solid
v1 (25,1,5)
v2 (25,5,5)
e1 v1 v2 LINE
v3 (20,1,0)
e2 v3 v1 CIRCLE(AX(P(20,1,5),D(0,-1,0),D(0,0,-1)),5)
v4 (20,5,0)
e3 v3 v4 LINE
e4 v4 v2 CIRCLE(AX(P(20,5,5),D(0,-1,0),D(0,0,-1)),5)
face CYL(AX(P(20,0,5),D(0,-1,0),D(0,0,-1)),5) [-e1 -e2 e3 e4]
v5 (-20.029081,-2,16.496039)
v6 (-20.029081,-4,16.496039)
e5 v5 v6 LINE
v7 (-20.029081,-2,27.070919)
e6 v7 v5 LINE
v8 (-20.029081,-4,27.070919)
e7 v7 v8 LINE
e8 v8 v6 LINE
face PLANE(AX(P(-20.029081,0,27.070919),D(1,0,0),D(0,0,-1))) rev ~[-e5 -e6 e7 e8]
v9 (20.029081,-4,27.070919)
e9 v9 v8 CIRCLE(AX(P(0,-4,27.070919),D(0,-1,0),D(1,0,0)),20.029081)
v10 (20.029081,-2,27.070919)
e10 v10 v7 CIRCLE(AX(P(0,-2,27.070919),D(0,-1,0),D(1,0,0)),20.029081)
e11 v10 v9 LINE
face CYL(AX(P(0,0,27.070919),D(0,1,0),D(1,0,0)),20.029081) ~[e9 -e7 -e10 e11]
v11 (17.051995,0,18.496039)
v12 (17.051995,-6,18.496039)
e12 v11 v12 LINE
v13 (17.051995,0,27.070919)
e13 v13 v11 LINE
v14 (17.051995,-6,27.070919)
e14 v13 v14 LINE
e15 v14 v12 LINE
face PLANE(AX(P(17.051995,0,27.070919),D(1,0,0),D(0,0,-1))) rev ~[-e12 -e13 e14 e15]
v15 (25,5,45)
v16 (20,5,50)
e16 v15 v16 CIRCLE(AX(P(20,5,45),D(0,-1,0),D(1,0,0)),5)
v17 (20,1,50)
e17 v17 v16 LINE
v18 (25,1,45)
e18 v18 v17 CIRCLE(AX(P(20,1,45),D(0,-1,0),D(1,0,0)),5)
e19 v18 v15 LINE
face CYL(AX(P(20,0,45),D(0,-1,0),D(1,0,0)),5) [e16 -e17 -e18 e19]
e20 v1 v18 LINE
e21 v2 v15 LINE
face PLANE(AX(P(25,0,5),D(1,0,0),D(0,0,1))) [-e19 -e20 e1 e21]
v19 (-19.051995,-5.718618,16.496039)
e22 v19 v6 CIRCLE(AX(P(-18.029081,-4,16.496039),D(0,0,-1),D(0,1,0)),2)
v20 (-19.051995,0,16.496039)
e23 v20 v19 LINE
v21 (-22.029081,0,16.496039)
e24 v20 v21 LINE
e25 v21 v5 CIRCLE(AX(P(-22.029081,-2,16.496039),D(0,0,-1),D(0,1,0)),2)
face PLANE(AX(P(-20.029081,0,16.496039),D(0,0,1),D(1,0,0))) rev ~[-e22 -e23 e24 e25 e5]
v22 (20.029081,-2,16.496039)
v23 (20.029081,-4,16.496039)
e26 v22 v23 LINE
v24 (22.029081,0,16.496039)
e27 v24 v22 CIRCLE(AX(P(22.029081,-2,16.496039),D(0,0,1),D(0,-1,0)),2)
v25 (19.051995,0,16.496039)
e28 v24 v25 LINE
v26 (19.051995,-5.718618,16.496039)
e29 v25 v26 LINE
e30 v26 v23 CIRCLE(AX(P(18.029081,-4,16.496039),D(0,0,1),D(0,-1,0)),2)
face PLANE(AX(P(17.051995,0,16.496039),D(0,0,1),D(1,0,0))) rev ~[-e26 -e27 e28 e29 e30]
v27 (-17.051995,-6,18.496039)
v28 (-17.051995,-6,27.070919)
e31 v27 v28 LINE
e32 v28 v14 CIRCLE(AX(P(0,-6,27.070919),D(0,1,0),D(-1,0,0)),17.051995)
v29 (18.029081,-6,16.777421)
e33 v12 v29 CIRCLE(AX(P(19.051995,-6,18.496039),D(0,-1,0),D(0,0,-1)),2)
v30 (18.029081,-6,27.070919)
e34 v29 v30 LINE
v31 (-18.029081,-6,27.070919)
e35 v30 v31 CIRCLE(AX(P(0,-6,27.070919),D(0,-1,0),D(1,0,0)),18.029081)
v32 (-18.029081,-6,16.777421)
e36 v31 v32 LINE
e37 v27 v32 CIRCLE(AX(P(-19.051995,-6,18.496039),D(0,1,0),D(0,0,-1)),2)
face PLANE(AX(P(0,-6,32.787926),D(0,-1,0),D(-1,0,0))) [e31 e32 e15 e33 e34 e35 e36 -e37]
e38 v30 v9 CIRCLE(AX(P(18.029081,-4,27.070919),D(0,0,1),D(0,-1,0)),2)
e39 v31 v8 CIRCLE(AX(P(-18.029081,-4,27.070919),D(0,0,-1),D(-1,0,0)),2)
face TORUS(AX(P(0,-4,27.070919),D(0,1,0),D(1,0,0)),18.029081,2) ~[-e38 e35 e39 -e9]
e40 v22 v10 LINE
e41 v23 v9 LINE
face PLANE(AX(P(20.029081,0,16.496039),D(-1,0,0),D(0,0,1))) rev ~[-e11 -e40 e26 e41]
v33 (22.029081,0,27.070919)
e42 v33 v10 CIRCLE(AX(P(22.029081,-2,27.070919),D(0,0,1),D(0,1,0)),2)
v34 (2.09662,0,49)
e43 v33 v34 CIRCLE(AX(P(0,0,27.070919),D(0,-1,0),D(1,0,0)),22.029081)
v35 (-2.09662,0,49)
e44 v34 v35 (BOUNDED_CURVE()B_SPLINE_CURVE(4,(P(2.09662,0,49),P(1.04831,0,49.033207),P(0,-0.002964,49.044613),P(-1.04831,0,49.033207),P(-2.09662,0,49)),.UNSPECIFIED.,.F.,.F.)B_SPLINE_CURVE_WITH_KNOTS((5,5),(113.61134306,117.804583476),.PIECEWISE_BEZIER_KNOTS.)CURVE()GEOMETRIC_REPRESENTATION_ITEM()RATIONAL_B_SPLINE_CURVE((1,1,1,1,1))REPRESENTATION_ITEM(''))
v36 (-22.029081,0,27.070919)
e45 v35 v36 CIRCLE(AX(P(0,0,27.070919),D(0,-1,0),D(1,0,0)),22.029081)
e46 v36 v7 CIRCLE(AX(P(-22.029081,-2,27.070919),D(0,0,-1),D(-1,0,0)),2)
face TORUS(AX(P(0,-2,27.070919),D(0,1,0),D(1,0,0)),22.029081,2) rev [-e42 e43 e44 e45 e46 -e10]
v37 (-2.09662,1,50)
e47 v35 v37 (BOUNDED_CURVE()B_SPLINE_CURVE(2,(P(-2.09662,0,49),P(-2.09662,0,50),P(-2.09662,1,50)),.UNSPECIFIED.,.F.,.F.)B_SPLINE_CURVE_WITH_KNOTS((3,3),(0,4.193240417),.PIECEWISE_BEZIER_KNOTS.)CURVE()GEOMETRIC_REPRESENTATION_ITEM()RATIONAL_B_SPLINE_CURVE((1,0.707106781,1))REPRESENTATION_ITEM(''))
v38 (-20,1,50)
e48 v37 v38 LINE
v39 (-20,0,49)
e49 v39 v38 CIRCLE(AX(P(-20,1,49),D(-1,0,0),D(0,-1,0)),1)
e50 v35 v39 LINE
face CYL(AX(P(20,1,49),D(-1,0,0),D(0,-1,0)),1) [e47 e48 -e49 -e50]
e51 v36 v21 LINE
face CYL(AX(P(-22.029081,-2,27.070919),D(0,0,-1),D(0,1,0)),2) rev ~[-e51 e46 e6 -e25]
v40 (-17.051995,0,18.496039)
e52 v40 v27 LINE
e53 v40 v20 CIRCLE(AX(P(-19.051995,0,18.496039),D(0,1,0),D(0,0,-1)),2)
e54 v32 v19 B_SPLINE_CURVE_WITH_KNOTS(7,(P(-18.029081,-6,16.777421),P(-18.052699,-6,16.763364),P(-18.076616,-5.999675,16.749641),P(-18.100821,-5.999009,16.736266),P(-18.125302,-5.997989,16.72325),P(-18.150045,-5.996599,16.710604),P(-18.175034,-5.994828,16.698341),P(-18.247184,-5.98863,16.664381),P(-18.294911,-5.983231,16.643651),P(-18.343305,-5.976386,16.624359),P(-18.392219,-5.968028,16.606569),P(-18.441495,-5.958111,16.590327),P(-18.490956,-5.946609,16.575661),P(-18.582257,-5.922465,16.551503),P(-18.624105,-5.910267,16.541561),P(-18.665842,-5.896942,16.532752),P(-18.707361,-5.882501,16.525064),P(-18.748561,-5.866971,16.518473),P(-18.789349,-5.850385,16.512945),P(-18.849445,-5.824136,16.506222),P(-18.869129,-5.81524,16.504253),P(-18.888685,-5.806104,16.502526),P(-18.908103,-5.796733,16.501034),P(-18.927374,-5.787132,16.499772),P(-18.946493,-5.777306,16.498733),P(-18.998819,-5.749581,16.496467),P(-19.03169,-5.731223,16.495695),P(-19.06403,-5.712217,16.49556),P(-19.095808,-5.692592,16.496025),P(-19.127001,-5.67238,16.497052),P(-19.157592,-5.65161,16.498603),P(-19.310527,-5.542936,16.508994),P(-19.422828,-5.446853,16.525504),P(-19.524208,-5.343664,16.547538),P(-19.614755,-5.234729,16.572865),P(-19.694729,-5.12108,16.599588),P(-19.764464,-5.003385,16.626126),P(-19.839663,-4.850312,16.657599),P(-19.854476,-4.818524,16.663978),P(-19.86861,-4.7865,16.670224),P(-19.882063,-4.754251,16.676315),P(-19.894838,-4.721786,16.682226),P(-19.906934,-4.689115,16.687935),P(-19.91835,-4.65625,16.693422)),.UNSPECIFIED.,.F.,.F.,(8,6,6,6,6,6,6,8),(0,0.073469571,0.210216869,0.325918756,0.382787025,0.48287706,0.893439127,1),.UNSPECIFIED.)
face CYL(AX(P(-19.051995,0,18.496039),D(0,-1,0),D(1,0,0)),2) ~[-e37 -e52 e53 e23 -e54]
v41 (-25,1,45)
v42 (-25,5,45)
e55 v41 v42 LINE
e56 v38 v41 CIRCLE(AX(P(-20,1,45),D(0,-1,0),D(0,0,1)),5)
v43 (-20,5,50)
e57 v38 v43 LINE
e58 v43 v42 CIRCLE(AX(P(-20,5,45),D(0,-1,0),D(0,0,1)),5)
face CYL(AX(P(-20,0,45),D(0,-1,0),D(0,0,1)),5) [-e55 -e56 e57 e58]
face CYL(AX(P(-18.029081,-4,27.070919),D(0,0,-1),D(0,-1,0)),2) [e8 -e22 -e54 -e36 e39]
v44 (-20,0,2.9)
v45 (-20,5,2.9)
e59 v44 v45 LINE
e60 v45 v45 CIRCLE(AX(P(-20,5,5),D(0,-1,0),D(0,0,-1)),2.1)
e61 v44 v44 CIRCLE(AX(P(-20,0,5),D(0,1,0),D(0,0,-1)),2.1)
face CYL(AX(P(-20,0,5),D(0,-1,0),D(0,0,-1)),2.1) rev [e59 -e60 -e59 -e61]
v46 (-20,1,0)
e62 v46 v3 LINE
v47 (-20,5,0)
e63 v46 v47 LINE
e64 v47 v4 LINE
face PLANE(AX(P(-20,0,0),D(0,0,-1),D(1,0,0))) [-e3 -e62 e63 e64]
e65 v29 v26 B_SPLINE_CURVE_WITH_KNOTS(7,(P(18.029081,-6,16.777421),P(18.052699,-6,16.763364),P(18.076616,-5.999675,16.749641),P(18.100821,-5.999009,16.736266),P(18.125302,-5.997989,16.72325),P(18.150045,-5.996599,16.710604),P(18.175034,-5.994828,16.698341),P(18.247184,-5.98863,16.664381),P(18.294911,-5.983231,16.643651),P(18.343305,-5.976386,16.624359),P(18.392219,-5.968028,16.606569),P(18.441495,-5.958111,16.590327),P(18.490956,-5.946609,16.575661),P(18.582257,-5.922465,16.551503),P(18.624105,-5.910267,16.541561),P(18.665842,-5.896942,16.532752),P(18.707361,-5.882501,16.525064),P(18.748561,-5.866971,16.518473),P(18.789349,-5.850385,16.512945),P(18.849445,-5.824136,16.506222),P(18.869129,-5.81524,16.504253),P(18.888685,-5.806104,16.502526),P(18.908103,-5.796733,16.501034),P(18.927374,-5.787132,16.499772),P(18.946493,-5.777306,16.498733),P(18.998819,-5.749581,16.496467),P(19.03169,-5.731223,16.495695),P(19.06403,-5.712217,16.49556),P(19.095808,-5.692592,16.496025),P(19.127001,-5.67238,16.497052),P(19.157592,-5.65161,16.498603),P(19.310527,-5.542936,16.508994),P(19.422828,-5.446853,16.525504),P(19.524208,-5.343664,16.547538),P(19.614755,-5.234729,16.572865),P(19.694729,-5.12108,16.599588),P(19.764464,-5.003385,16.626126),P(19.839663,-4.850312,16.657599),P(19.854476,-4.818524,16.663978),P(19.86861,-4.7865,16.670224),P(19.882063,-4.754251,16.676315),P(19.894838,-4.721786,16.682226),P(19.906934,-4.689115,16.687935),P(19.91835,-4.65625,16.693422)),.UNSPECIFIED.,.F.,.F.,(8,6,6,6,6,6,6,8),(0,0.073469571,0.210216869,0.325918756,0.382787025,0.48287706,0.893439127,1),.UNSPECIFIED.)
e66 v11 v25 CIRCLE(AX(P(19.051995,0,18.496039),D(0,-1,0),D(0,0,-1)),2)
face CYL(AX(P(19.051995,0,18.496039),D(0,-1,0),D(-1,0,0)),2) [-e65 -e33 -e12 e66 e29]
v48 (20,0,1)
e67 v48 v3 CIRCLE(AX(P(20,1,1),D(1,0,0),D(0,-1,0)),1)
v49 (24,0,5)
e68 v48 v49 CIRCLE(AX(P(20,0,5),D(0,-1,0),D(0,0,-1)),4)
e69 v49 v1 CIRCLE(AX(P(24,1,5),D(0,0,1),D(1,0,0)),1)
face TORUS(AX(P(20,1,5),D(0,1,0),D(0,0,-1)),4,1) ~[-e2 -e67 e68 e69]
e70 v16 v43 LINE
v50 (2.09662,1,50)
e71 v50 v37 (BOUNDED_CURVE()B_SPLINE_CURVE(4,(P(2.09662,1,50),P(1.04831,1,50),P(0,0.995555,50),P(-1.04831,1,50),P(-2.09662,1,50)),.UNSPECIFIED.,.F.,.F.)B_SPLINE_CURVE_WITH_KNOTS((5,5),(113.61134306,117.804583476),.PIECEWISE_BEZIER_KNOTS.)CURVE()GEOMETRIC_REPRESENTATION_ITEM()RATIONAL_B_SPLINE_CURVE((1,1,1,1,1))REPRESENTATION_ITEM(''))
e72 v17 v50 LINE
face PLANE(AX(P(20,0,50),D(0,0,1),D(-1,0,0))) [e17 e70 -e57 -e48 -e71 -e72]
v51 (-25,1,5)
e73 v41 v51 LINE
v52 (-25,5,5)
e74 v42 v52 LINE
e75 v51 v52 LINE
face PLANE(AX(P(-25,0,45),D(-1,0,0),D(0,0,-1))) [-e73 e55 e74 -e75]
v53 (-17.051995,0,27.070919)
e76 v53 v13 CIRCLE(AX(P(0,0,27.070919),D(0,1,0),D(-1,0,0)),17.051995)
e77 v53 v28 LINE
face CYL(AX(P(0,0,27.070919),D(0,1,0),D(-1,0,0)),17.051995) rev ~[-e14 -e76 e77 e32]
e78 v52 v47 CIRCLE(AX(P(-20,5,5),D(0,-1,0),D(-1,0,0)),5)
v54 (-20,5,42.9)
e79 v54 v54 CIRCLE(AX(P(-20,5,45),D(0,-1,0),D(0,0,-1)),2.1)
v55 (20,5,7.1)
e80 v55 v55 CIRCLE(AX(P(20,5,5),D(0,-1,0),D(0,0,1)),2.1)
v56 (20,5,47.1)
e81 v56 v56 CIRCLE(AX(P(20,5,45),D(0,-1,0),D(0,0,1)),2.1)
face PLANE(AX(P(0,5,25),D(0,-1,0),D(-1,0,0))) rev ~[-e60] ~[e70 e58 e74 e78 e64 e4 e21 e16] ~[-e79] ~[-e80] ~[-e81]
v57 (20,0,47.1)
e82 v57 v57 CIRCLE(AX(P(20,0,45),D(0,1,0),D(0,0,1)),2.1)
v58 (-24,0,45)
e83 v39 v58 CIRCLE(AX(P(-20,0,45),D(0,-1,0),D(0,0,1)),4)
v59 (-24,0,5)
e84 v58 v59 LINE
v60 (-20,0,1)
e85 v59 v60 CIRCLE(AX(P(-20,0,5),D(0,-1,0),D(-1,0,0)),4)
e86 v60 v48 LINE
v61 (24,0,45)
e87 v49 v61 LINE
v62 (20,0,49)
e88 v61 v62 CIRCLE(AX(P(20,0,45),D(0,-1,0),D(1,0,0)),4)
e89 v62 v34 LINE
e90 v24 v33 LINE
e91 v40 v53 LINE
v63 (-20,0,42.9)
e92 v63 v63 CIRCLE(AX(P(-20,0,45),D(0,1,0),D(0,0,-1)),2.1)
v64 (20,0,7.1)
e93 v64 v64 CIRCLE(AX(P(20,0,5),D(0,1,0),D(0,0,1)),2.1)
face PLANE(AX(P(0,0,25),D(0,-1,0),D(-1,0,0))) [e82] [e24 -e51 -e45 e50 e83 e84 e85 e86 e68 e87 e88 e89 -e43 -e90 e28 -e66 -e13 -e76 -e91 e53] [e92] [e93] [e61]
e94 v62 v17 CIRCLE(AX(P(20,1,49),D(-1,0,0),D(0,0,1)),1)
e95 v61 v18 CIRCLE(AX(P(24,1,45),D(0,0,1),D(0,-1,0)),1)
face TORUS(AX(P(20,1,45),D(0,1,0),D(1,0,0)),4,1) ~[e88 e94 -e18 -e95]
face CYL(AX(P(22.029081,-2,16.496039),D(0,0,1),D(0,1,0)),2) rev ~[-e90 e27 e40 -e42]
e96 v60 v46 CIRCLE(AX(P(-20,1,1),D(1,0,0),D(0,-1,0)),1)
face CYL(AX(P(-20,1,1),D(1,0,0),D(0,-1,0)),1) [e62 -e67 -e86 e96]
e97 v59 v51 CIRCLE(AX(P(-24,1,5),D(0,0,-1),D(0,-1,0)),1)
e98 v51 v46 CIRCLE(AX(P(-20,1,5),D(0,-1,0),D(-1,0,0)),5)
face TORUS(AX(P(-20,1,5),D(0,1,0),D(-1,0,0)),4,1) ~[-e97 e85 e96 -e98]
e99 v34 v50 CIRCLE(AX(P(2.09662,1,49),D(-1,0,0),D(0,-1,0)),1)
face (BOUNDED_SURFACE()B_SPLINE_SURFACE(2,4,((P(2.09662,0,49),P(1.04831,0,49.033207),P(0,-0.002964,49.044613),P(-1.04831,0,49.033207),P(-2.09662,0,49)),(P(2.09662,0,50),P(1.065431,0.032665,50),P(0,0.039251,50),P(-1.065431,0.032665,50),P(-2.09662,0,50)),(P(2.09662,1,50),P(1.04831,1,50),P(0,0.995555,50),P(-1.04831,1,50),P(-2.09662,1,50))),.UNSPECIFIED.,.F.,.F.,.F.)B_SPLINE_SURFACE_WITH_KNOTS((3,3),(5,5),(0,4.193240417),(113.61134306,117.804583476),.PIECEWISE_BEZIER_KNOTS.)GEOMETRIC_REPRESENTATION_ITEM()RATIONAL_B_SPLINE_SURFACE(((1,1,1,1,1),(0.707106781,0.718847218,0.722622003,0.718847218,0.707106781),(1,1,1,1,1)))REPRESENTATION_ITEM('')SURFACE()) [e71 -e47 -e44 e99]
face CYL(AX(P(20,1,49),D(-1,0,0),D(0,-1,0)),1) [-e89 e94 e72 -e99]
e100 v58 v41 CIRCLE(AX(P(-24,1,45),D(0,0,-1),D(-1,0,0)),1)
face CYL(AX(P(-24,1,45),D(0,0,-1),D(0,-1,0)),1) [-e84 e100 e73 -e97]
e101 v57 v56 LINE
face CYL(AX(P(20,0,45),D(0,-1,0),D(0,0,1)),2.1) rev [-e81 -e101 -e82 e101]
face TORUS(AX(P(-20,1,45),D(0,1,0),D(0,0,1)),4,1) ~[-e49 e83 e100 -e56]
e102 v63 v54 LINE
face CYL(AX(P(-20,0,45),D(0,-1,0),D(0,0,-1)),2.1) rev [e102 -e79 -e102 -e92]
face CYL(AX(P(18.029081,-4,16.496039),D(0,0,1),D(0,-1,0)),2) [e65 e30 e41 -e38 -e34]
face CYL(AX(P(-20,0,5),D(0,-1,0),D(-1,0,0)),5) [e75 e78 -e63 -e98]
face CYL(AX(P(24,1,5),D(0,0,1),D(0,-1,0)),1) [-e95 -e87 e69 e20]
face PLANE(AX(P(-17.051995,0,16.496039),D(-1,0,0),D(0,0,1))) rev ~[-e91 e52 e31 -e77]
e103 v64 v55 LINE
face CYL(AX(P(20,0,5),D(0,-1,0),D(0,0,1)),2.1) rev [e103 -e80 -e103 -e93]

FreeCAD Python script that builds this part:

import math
import FreeCAD as App
import Part
import Sketcher
from FreeCAD import Vector
Q = App.Units.Quantity


def edges_at(feature, points):
    """Names of the edges that pass closest to the given points."""
    edges = feature.Shape.Edges
    near = lambda p: min(range(len(edges)), key=lambda i: edges[i].distToShape(Part.Vertex(*p))[0])
    return sorted({f"Edge{near(p) + 1}" for p in points})

doc = App.newDocument("Part")
body = doc.addObject("PartDesign::Body", "Body")

# Sketch on XZ plane
sketch1 = doc.addObject("Sketcher::SketchObject", "Sketch")
body.addObject(sketch1)
sketch1.AttachmentSupport = (doc.XZ_Plane, [""])
sketch1.MapMode = "FlatFace"
sketch1.addGeometry(Part.LineSegment(Vector(20, 0, 0), Vector(-20, 0, 0)), False)
sketch1.addGeometry(Part.ArcOfCircle(Part.Circle(Vector(-20, 5, 0), Vector(0, 0, 1), 5), math.radians(180), math.radians(270)), False)
sketch1.addGeometry(Part.LineSegment(Vector(-25, 5, 0), Vector(-25, 45, 0)), False)
sketch1.addGeometry(Part.ArcOfCircle(Part.Circle(Vector(-20, 45, 0), Vector(0, 0, 1), 5), math.radians(90), math.radians(180)), False)
sketch1.addGeometry(Part.LineSegment(Vector(-20, 50, 0), Vector(20, 50, 0)), False)
sketch1.addGeometry(Part.ArcOfCircle(Part.Circle(Vector(20, 45, 0), Vector(0, 0, 1), 5), math.radians(0), math.radians(90)), False)
sketch1.addGeometry(Part.LineSegment(Vector(25, 45, 0), Vector(25, 5, 0)), False)
sketch1.addGeometry(Part.ArcOfCircle(Part.Circle(Vector(20, 5, 0), Vector(0, 0, 1), 5), math.radians(-90), math.radians(0)), False)
sketch1.addConstraint(Sketcher.Constraint("Tangent", 0, 2, 1, 2))
sketch1.addConstraint(Sketcher.Constraint("Tangent", 1, 1, 2, 1))
sketch1.addConstraint(Sketcher.Constraint("Tangent", 2, 2, 3, 2))
sketch1.addConstraint(Sketcher.Constraint("Tangent", 3, 1, 4, 1))
sketch1.addConstraint(Sketcher.Constraint("Tangent", 4, 2, 5, 2))
sketch1.addConstraint(Sketcher.Constraint("Tangent", 5, 1, 6, 1))
sketch1.addConstraint(Sketcher.Constraint("Tangent", 6, 2, 7, 2))
sketch1.addConstraint(Sketcher.Constraint("Tangent", 7, 1, 0, 1))
sketch1.addConstraint(Sketcher.Constraint("Horizontal", 0))
sketch1.addConstraint(Sketcher.Constraint("Vertical", 2))
sketch1.addConstraint(Sketcher.Constraint("Horizontal", 4))
sketch1.addConstraint(Sketcher.Constraint("Vertical", 6))
sketch1.addConstraint(Sketcher.Constraint("Equal", 1, 3))
sketch1.addConstraint(Sketcher.Constraint("Equal", 3, 5))
sketch1.addConstraint(Sketcher.Constraint("Equal", 5, 7))
sketch1.addConstraint(Sketcher.Constraint("Symmetric", 0, 2, 7, 1, -1, 1))
sketch1.addConstraint(Sketcher.Constraint("Equal", 4, 2))
sketch1.addConstraint(Sketcher.Constraint("Radius", 1, Q("5 mm")))
sketch1.addConstraint(Sketcher.Constraint("DistanceX", 0, 2, 0, 1, Q("40 mm")))
pad1 = doc.addObject("PartDesign::Pad", "Pad")
body.addObject(pad1)
pad1.Profile = sketch1
pad1.Length = 5
pad1.Reversed = True

# Sketch on XZ plane
sketch2 = doc.addObject("Sketcher::SketchObject", "Sketch001")
body.addObject(sketch2)
sketch2.AttachmentSupport = (doc.XZ_Plane, [""])
sketch2.MapMode = "FlatFace"
sketch2.addGeometry(Part.Circle(Vector(20, 45, 0), Vector(0, 0, 1), 2.1), False)
sketch2.addConstraint(Sketcher.Constraint("Diameter", 0, Q("4.2 mm")))
sketch2.addConstraint(Sketcher.Constraint("DistanceX", -1, 1, 0, 3, Q("20 mm")))
sketch2.addConstraint(Sketcher.Constraint("DistanceY", -1, 1, 0, 3, Q("45 mm")))
pocket1 = doc.addObject("PartDesign::Pocket", "Pocket")
body.addObject(pocket1)
pocket1.Profile = sketch2
pocket1.Type = "ThroughAll"

# Sketch on XZ plane
sketch3 = doc.addObject("Sketcher::SketchObject", "Sketch002")
body.addObject(sketch3)
sketch3.AttachmentSupport = (doc.XZ_Plane, [""])
sketch3.MapMode = "FlatFace"
sketch3.addGeometry(Part.Circle(Vector(20, 5, 0), Vector(0, 0, 1), 2.1), False)
sketch3.addConstraint(Sketcher.Constraint("Diameter", 0, Q("4.2 mm")))
sketch3.addConstraint(Sketcher.Constraint("DistanceX", -1, 1, 0, 3, Q("20 mm")))
sketch3.addConstraint(Sketcher.Constraint("DistanceY", -1, 1, 0, 3, Q("5 mm")))
pocket2 = doc.addObject("PartDesign::Pocket", "Pocket001")
body.addObject(pocket2)
pocket2.Profile = sketch3
pocket2.Type = "ThroughAll"

# Sketch on XZ plane
sketch4 = doc.addObject("Sketcher::SketchObject", "Sketch003")
body.addObject(sketch4)
sketch4.AttachmentSupport = (doc.XZ_Plane, [""])
sketch4.MapMode = "FlatFace"
sketch4.addGeometry(Part.Circle(Vector(-20, 5, 0), Vector(0, 0, 1), 2.1), False)
sketch4.addConstraint(Sketcher.Constraint("Diameter", 0, Q("4.2 mm")))
sketch4.addConstraint(Sketcher.Constraint("DistanceX", 0, 3, -1, 1, Q("20 mm")))
sketch4.addConstraint(Sketcher.Constraint("DistanceY", -1, 1, 0, 3, Q("5 mm")))
pocket3 = doc.addObject("PartDesign::Pocket", "Pocket002")
body.addObject(pocket3)
pocket3.Profile = sketch4
pocket3.Type = "ThroughAll"

# Sketch on XZ plane
sketch5 = doc.addObject("Sketcher::SketchObject", "Sketch004")
body.addObject(sketch5)
sketch5.AttachmentSupport = (doc.XZ_Plane, [""])
sketch5.MapMode = "FlatFace"
sketch5.addGeometry(Part.Circle(Vector(-20, 45, 0), Vector(0, 0, 1), 2.1), False)
sketch5.addConstraint(Sketcher.Constraint("Diameter", 0, Q("4.2 mm")))
sketch5.addConstraint(Sketcher.Constraint("DistanceX", 0, 3, -1, 1, Q("20 mm")))
sketch5.addConstraint(Sketcher.Constraint("DistanceY", -1, 1, 0, 3, Q("45 mm")))
pocket4 = doc.addObject("PartDesign::Pocket", "Pocket003")
body.addObject(pocket4)
pocket4.Profile = sketch5
pocket4.Type = "ThroughAll"

# Sketch on XZ plane
sketch6 = doc.addObject("Sketcher::SketchObject", "Sketch005")
body.addObject(sketch6)
sketch6.AttachmentSupport = (doc.XZ_Plane, [""])
sketch6.MapMode = "FlatFace"
sketch6.addGeometry(Part.LineSegment(Vector(17.1, 16.5, 0), Vector(17.1, 27.1, 0)), False)
sketch6.addGeometry(Part.ArcOfCircle(Part.Circle(Vector(0, 27.1, 0), Vector(0, 0, 1), 17.1), math.radians(0), math.radians(180)), False)
sketch6.addGeometry(Part.LineSegment(Vector(-17.1, 27.1, 0), Vector(-17.1, 16.5, 0)), False)
sketch6.addGeometry(Part.LineSegment(Vector(-17.1, 16.5, 0), Vector(-20, 16.5, 0)), False)
sketch6.addGeometry(Part.LineSegment(Vector(-20, 16.5, 0), Vector(-20, 27.1, 0)), False)
sketch6.addGeometry(Part.ArcOfCircle(Part.Circle(Vector(0, 27.1, 0), Vector(0, 0, 1), 20), math.radians(0), math.radians(180)), False)
sketch6.addGeometry(Part.LineSegment(Vector(20, 27.1, 0), Vector(20, 16.5, 0)), False)
sketch6.addGeometry(Part.LineSegment(Vector(20, 16.5, 0), Vector(17.1, 16.5, 0)), False)
sketch6.addConstraint(Sketcher.Constraint("Tangent", 0, 2, 1, 1))
sketch6.addConstraint(Sketcher.Constraint("Tangent", 1, 2, 2, 1))
sketch6.addConstraint(Sketcher.Constraint("Coincident", 2, 2, 3, 1))
sketch6.addConstraint(Sketcher.Constraint("Coincident", 3, 2, 4, 1))
sketch6.addConstraint(Sketcher.Constraint("Tangent", 4, 2, 5, 2))
sketch6.addConstraint(Sketcher.Constraint("Tangent", 5, 1, 6, 1))
sketch6.addConstraint(Sketcher.Constraint("Coincident", 6, 2, 7, 1))
sketch6.addConstraint(Sketcher.Constraint("Coincident", 7, 2, 0, 1))
sketch6.addConstraint(Sketcher.Constraint("Vertical", 0))
sketch6.addConstraint(Sketcher.Constraint("Vertical", 2))
sketch6.addConstraint(Sketcher.Constraint("Horizontal", 3))
sketch6.addConstraint(Sketcher.Constraint("Vertical", 4))
sketch6.addConstraint(Sketcher.Constraint("Vertical", 6))
sketch6.addConstraint(Sketcher.Constraint("Horizontal", 7))
sketch6.addConstraint(Sketcher.Constraint("Coincident", 5, 3, 1, 3))
sketch6.addConstraint(Sketcher.Constraint("Symmetric", 3, 2, 6, 2, -2))
sketch6.addConstraint(Sketcher.Constraint("Radius", 5, Q("20.029081 mm")))
sketch6.addConstraint(Sketcher.Constraint("Radius", 1, Q("17.051995 mm")))
sketch6.addConstraint(Sketcher.Constraint("DistanceY", 0, 1, 0, 2, Q("10.574879 mm")))
sketch6.addConstraint(Sketcher.Constraint("DistanceY", -1, 1, 1, 3, Q("27.070919 mm")))
pad2 = doc.addObject("PartDesign::Pad", "Pad001")
body.addObject(pad2)
pad2.Profile = sketch6
pad2.Length = 6
doc.recompute()

fillet = doc.addObject("PartDesign::Fillet", "Fillet")
body.addObject(fillet)
fillet.Base = (pad2, edges_at(pad2, [(20.029, 0, 21.783), (-20.029, 0, 21.783), (0, 0, 47.1)]))
fillet.Radius = 2
doc.recompute()

fillet2 = doc.addObject("PartDesign::Fillet", "Fillet001")
body.addObject(fillet2)
fillet2.Base = (fillet, edges_at(fillet, [(17.052, -3, 16.496)]))
fillet2.Radius = 2
doc.recompute()

fillet3 = doc.addObject("PartDesign::Fillet", "Fillet002")
body.addObject(fillet3)
fillet3.Base = (fillet2, edges_at(fillet2, [(-17.052, -3, 16.496)]))
fillet3.Radius = 2
doc.recompute()

fillet4 = doc.addObject("PartDesign::Fillet", "Fillet003")
body.addObject(fillet4)
fillet4.Base = (fillet3, edges_at(fillet3, [(-20.029, -6, 21.783), (0, -6, 47.1), (20.029, -6, 21.783)]))
fillet4.Radius = 2
doc.recompute()

fillet5 = doc.addObject("PartDesign::Fillet", "Fillet004")
body.addObject(fillet5)
fillet5.Base = (fillet4, edges_at(fillet4, [
    (0, 0, 0),
    (-23.536, 0, 1.464),
    (-25, 0, 25),
    (-23.536, 0, 48.536),
    (0, 0, 50),
    (23.536, 0, 48.536),
    (25, 0, 25),
    (23.536, 0, 1.464),
]))
fillet5.Radius = 1

doc.recompute()
